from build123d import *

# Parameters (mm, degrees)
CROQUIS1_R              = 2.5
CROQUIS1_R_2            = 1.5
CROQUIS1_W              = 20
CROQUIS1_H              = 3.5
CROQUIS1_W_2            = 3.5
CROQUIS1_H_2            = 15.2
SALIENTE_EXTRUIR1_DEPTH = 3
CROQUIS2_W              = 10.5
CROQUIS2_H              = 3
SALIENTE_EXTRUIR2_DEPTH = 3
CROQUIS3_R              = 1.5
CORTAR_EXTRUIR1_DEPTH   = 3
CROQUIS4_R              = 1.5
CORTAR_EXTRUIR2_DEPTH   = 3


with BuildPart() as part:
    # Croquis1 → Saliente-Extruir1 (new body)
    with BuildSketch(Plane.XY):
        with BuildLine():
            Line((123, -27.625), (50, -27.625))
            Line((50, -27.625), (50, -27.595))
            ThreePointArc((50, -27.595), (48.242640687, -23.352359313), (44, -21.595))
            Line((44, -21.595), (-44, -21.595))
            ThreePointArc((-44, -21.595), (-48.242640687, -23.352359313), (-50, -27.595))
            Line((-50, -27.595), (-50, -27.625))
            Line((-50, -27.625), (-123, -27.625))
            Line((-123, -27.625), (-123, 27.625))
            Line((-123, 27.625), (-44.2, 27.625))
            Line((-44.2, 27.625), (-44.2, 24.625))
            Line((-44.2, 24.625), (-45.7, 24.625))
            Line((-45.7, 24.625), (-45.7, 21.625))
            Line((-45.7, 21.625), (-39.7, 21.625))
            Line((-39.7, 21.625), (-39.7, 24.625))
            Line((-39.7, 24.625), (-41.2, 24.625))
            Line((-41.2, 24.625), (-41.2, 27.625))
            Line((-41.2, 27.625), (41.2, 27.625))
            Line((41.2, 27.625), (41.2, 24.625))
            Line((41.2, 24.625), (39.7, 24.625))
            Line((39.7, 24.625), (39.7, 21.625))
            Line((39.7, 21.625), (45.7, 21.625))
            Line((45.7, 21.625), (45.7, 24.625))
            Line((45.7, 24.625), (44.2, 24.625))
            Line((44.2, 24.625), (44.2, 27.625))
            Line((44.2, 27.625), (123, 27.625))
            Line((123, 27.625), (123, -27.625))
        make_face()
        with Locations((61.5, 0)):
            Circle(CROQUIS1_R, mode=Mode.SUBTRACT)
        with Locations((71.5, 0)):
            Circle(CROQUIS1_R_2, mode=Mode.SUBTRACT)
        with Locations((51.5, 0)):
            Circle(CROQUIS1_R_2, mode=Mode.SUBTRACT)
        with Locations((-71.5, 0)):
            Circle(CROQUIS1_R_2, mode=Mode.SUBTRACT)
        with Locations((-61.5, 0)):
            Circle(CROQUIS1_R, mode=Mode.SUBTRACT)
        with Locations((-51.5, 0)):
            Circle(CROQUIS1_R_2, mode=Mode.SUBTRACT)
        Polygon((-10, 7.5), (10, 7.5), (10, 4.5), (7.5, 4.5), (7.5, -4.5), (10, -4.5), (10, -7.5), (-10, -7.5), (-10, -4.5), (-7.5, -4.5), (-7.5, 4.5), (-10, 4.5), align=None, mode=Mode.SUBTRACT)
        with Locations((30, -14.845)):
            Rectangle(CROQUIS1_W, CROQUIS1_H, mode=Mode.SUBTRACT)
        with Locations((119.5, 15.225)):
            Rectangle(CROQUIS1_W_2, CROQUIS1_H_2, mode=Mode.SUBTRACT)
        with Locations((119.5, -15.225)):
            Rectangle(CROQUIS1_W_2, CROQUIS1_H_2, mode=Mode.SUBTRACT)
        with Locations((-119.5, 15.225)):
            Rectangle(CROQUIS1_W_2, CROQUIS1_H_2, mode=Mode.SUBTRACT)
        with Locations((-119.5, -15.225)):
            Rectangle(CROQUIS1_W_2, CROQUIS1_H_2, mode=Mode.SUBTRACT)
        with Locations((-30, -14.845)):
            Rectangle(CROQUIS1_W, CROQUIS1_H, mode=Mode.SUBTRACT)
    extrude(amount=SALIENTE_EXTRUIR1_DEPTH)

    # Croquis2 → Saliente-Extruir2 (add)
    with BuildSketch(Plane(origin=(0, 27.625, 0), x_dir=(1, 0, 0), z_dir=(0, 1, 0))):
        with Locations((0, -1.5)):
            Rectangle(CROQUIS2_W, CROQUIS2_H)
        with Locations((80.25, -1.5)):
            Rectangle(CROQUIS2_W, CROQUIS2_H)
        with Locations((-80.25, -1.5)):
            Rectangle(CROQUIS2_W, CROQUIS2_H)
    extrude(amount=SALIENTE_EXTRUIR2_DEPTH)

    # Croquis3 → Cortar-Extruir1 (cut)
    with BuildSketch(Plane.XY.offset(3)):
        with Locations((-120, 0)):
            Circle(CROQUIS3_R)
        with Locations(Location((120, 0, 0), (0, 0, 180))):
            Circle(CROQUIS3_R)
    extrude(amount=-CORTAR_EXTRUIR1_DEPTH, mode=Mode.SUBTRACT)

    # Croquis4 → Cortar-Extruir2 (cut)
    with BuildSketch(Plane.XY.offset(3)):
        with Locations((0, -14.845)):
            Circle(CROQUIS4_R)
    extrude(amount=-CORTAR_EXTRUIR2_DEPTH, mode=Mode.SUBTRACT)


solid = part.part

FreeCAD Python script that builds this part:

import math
import FreeCAD as App
import Part
import Sketcher
from FreeCAD import Vector


def add_polygon(sketch, points):
    """Adds a closed chain of lines whose ends are joined by coincident constraints."""
    first, n = sketch.GeometryCount, len(points)
    for a, b in zip(points, points[1:] + points[:1]):
        sketch.addGeometry(Part.LineSegment(App.Vector(*a, 0), App.Vector(*b, 0)), False)
    for i in range(n):
        sketch.addConstraint(Sketcher.Constraint("Coincident", first + i, 2, first + (i + 1) % n, 1))

doc = App.newDocument("Part")
body = doc.addObject("PartDesign::Body", "Body")

# Sketch on XY plane
sketch1 = body.newObject("Sketcher::SketchObject", "Sketch")
sketch1.AttachmentSupport = (doc.getObject("XY_Plane"), [""])
sketch1.MapMode = "FlatFace"
sketch1.addGeometry(Part.LineSegment(Vector(50, -27.625, 0), Vector(123, -27.625, 0)), False)  # 0
sketch1.addGeometry(Part.LineSegment(Vector(123, -27.625, 0), Vector(123, 27.625, 0)), False)  # 1
sketch1.addGeometry(Part.LineSegment(Vector(123, 27.625, 0), Vector(44.2, 27.625, 0)), False)  # 2
sketch1.addGeometry(Part.LineSegment(Vector(44.2, 27.625, 0), Vector(44.2, 24.625, 0)), False)  # 3
sketch1.addGeometry(Part.LineSegment(Vector(44.2, 24.625, 0), Vector(45.7, 24.625, 0)), False)  # 4
sketch1.addGeometry(Part.LineSegment(Vector(45.7, 24.625, 0), Vector(45.7, 21.625, 0)), False)  # 5
sketch1.addGeometry(Part.LineSegment(Vector(45.7, 21.625, 0), Vector(39.7, 21.625, 0)), False)  # 6
sketch1.addGeometry(Part.LineSegment(Vector(39.7, 21.625, 0), Vector(39.7, 24.625, 0)), False)  # 7
sketch1.addGeometry(Part.LineSegment(Vector(39.7, 24.625, 0), Vector(41.2, 24.625, 0)), False)  # 8
sketch1.addGeometry(Part.LineSegment(Vector(41.2, 24.625, 0), Vector(41.2, 27.625, 0)), False)  # 9
sketch1.addGeometry(Part.LineSegment(Vector(41.2, 27.625, 0), Vector(-41.2, 27.625, 0)), False)  # 10
sketch1.addGeometry(Part.LineSegment(Vector(-41.2, 27.625, 0), Vector(-41.2, 24.625, 0)), False)  # 11
sketch1.addGeometry(Part.LineSegment(Vector(-41.2, 24.625, 0), Vector(-39.7, 24.625, 0)), False)  # 12
sketch1.addGeometry(Part.LineSegment(Vector(-39.7, 24.625, 0), Vector(-39.7, 21.625, 0)), False)  # 13
sketch1.addGeometry(Part.LineSegment(Vector(-39.7, 21.625, 0), Vector(-45.7, 21.625, 0)), False)  # 14
sketch1.addGeometry(Part.LineSegment(Vector(-45.7, 21.625, 0), Vector(-45.7, 24.625, 0)), False)  # 15
sketch1.addGeometry(Part.LineSegment(Vector(-45.7, 24.625, 0), Vector(-44.2, 24.625, 0)), False)  # 16
sketch1.addGeometry(Part.LineSegment(Vector(-44.2, 24.625, 0), Vector(-44.2, 27.625, 0)), False)  # 17
sketch1.addGeometry(Part.LineSegment(Vector(-44.2, 27.625, 0), Vector(-123, 27.625, 0)), False)  # 18
sketch1.addGeometry(Part.LineSegment(Vector(-123, 27.625, 0), Vector(-123, -27.625, 0)), False)  # 19
sketch1.addGeometry(Part.LineSegment(Vector(-123, -27.625, 0), Vector(-50, -27.625, 0)), False)  # 20
sketch1.addGeometry(Part.LineSegment(Vector(-50, -27.625, 0), Vector(-50, -27.595, 0)), False)  # 21
sketch1.addGeometry(Part.ArcOfCircle(Part.Circle(Vector(-44, -27.595, 0), Vector(0, 0, 1), 6), math.radians(90), math.radians(180)), False)  # 22
sketch1.addGeometry(Part.LineSegment(Vector(-44, -21.595, 0), Vector(44, -21.595, 0)), False)  # 23
sketch1.addGeometry(Part.ArcOfCircle(Part.Circle(Vector(44, -27.595, 0), Vector(0, 0, 1), 6), math.radians(0), math.radians(90)), False)  # 24
sketch1.addGeometry(Part.LineSegment(Vector(50, -27.595, 0), Vector(50, -27.625, 0)), False)  # 25
add_polygon(sketch1, [(117.75, -22.825), (117.75, -7.625), (121.25, -7.625), (121.25, -22.825)])  # lines 26-29
add_polygon(sketch1, [(20, -16.595), (20, -13.095), (40, -13.095), (40, -16.595)])  # lines 30-33
add_polygon(sketch1, [(-40, -16.595), (-40, -13.095), (-20, -13.095), (-20, -16.595)])  # lines 34-37
add_polygon(sketch1, [(-121.25, -22.825), (-121.25, -7.625), (-117.75, -7.625), (-117.75, -22.825)])  # lines 38-41
sketch1.addGeometry(Part.Circle(Vector(71.5, 0, 0), Vector(0, 0, 1), 1.5), False)  # 42
sketch1.addGeometry(Part.Circle(Vector(61.5, 0, 0), Vector(0, 0, 1), 2.5), False)  # 43
sketch1.addGeometry(Part.Circle(Vector(51.5, 0, 0), Vector(0, 0, 1), 1.5), False)  # 44
add_polygon(sketch1, [(117.75, 7.625), (117.75, 22.825), (121.25, 22.825), (121.25, 7.625)])  # lines 45-48
add_polygon(sketch1, [(-10, 7.5), (10, 7.5), (10, 4.5), (7.5, 4.5), (7.5, -4.5), (10, -4.5), (10, -7.5), (-10, -7.5), (-10, -4.5), (-7.5, -4.5), (-7.5, 4.5), (-10, 4.5)])  # lines 49-60
sketch1.addGeometry(Part.Circle(Vector(-51.5, 0, 0), Vector(0, 0, 1), 1.5), False)  # 61
sketch1.addGeometry(Part.Circle(Vector(-61.5, 0, 0), Vector(0, 0, 1), 2.5), False)  # 62
sketch1.addGeometry(Part.Circle(Vector(-71.5, 0, 0), Vector(0, 0, 1), 1.5), False)  # 63
add_polygon(sketch1, [(-121.25, 7.625), (-121.25, 22.825), (-117.75, 22.825), (-117.75, 7.625)])  # lines 64-67
sketch1.addConstraint([
    Sketcher.Constraint("Coincident", 0, 2, 1, 1),
    Sketcher.Constraint("Coincident", 1, 2, 2, 1),
    Sketcher.Constraint("Coincident", 2, 2, 3, 1),
    Sketcher.Constraint("Coincident", 3, 2, 4, 1),
    Sketcher.Constraint("Coincident", 4, 2, 5, 1),
    Sketcher.Constraint("Coincident", 5, 2, 6, 1),
    Sketcher.Constraint("Coincident", 6, 2, 7, 1),
    Sketcher.Constraint("Coincident", 7, 2, 8, 1),
    Sketcher.Constraint("Coincident", 8, 2, 9, 1),
    Sketcher.Constraint("Coincident", 9, 2, 10, 1),
    Sketcher.Constraint("Coincident", 10, 2, 11, 1),
    Sketcher.Constraint("Coincident", 11, 2, 12, 1),
    Sketcher.Constraint("Coincident", 12, 2, 13, 1),
    Sketcher.Constraint("Coincident", 13, 2, 14, 1),
    Sketcher.Constraint("Coincident", 14, 2, 15, 1),
    Sketcher.Constraint("Coincident", 15, 2, 16, 1),
    Sketcher.Constraint("Coincident", 16, 2, 17, 1),
    Sketcher.Constraint("Coincident", 17, 2, 18, 1),
    Sketcher.Constraint("Coincident", 18, 2, 19, 1),
    Sketcher.Constraint("Coincident", 19, 2, 20, 1),
    Sketcher.Constraint("Coincident", 20, 2, 21, 1),
    Sketcher.Constraint("Tangent", 21, 2, 22, 2),
    Sketcher.Constraint("Tangent", 22, 1, 23, 1),
    Sketcher.Constraint("Tangent", 23, 2, 24, 2),
    Sketcher.Constraint("Tangent", 24, 1, 25, 1),
    Sketcher.Constraint("Coincident", 25, 2, 0, 1),
    Sketcher.Constraint("Horizontal", 0),
    Sketcher.Constraint("Vertical", 1),
    Sketcher.Constraint("Horizontal", 2),
    Sketcher.Constraint("Vertical", 3),
    Sketcher.Constraint("Horizontal", 4),
    Sketcher.Constraint("Vertical", 5),
    Sketcher.Constraint("Horizontal", 6),
    Sketcher.Constraint("Vertical", 7),
    Sketcher.Constraint("Horizontal", 8),
    Sketcher.Constraint("Vertical", 9),
    Sketcher.Constraint("Horizontal", 10),
    Sketcher.Constraint("Vertical", 11),
    Sketcher.Constraint("Horizontal", 12),
    Sketcher.Constraint("Vertical", 13),
    Sketcher.Constraint("Horizontal", 14),
    Sketcher.Constraint("Vertical", 15),
    Sketcher.Constraint("Horizontal", 16),
    Sketcher.Constraint("Vertical", 17),
    Sketcher.Constraint("Horizontal", 18),
    Sketcher.Constraint("Vertical", 19),
    Sketcher.Constraint("Horizontal", 20),
    Sketcher.Constraint("Vertical", 21),
    Sketcher.Constraint("Horizontal", 23),
    Sketcher.Constraint("Vertical", 25),
    Sketcher.Constraint("Vertical", 26),
    Sketcher.Constraint("Horizontal", 27),
    Sketcher.Constraint("Vertical", 28),
    Sketcher.Constraint("Horizontal", 29),
    Sketcher.Constraint("Vertical", 30),
    Sketcher.Constraint("Horizontal", 31),
    Sketcher.Constraint("Vertical", 32),
    Sketcher.Constraint("Horizontal", 33),
    Sketcher.Constraint("Vertical", 34),
    Sketcher.Constraint("Horizontal", 35),
    Sketcher.Constraint("Vertical", 36),
    Sketcher.Constraint("Horizontal", 37),
    Sketcher.Constraint("Vertical", 38),
    Sketcher.Constraint("Horizontal", 39),
    Sketcher.Constraint("Vertical", 40),
    Sketcher.Constraint("Horizontal", 41),
    Sketcher.Constraint("Vertical", 45),
    Sketcher.Constraint("Horizontal", 46),
    Sketcher.Constraint("Vertical", 47),
    Sketcher.Constraint("Horizontal", 48),
    Sketcher.Constraint("Horizontal", 49),
    Sketcher.Constraint("Vertical", 50),
    Sketcher.Constraint("Horizontal", 51),
    Sketcher.Constraint("Vertical", 52),
    Sketcher.Constraint("Horizontal", 53),
    Sketcher.Constraint("Vertical", 54),
    Sketcher.Constraint("Horizontal", 55),
    Sketcher.Constraint("Vertical", 56),
    Sketcher.Constraint("Horizontal", 57),
    Sketcher.Constraint("Vertical", 58),
    Sketcher.Constraint("Horizontal", 59),
    Sketcher.Constraint("Vertical", 60),
    Sketcher.Constraint("Vertical", 64),
    Sketcher.Constraint("Horizontal", 65),
    Sketcher.Constraint("Vertical", 66),
    Sketcher.Constraint("Horizontal", 67),
    Sketcher.Constraint("Equal", 22, 24),
    Sketcher.Constraint("Equal", 42, 44),
    Sketcher.Constraint("Equal", 44, 61),
    Sketcher.Constraint("Equal", 43, 62),
    Sketcher.Constraint("Equal", 61, 63),
    Sketcher.Constraint("Symmetric", 44, 3, 61, 3, -1, 1),
    Sketcher.Constraint("Symmetric", 43, 3, 62, 3, -1, 1),
    Sketcher.Constraint("Symmetric", 42, 3, 63, 3, -1, 1),
    Sketcher.Constraint("Symmetric", 0, 2, 18, 2, -1, 1),
    Sketcher.Constraint("Symmetric", 40, 2, 45, 2, -1, 1),
    Sketcher.Constraint("Symmetric", 38, 2, 47, 2, -1, 1),
    Sketcher.Constraint("Symmetric", 49, 2, 55, 2, -1, 1),
    Sketcher.Constraint("Symmetric", 51, 2, 57, 2, -1, 1),
    Sketcher.Constraint("Symmetric", 53, 2, 59, 2, -1, 1),
    Sketcher.Constraint("Symmetric", 28, 2, 64, 2, -1, 1),
    Sketcher.Constraint("Symmetric", 26, 2, 66, 2, -1, 1),
    Sketcher.Constraint("Symmetric", 8, 2, 11, 2, -2),
    Sketcher.Constraint("Symmetric", 6, 2, 13, 2, -2),
    Sketcher.Constraint("Symmetric", 4, 2, 15, 2, -2),
    Sketcher.Constraint("Symmetric", 2, 2, 17, 2, -2),
    Sketcher.Constraint("Symmetric", 20, 2, 25, 2, -2),
    Sketcher.Constraint("Symmetric", 31, 2, 34, 2, -2),
    Sketcher.Constraint("Symmetric", 33, 2, 36, 2, -2),
    Sketcher.Constraint("Symmetric", 27, 2, 38, 2, -2),
    Sketcher.Constraint("Symmetric", 29, 2, 40, 2, -2),
    Sketcher.Constraint("Symmetric", 53, 2, 56, 2, -2),
    Sketcher.Constraint("PointOnObject", 42, 3, -1),
    Sketcher.Constraint("PointOnObject", 43, 3, -1),
    Sketcher.Constraint("PointOnObject", 44, 3, -1),
    Sketcher.Constraint("Horizontal", 4, 2, 7, 2),
    Sketcher.Constraint("Horizontal", 2, 2, 9, 2),
    Sketcher.Constraint("Equal", 4, 8),
    Sketcher.Constraint("Equal", 37, 49),
    Sketcher.Constraint("Equal", 3, 5),
    Sketcher.Constraint("Equal", 67, 30),
    Sketcher.Constraint("Equal", 17, 50),
    Sketcher.Constraint("Diameter", 42, 3.0),
    Sketcher.Constraint("Diameter", 43, 5.0),
    Sketcher.Constraint("Radius", 22, 6.0),
    Sketcher.Constraint("DistanceX", 0, 1, 0, 2, 73.0),
    Sketcher.Constraint("DistanceX", 6, 2, 6, 1, 6.0),
    Sketcher.Constraint("DistanceX", 23, 1, 23, 2, 88.0),
    Sketcher.Constraint("DistanceX", 31, 1, 31, 2, 20.0),
    Sketcher.Constraint("DistanceY", 3, 2, 3, 1, 3.0),
    Sketcher.Constraint("DistanceY", 52, 2, 52, 1, 9.0),
    Sketcher.Constraint("DistanceX", 2, 2, 2, 1, 78.8),
    Sketcher.Constraint("DistanceX", 4, 1, 4, 2, 1.5),
    Sketcher.Constraint("DistanceX", 27, 1, 27, 2, 3.5),
    Sketcher.Constraint("DistanceX", 51, 2, 51, 1, 2.5),
    Sketcher.Constraint("DistanceY", 26, 1, 26, 2, 15.2),
    Sketcher.Constraint("DistanceX", -1, 1, 30, 2, 20.0),
    Sketcher.Constraint("DistanceY", 1, 1, 1, 2, 55.25),
    Sketcher.Constraint("DistanceY", 21, 1, 21, 2, 0.03),
    Sketcher.Constraint("DistanceX", -1, 1, 42, 3, 71.5),
    Sketcher.Constraint("DistanceX", -1, 1, 43, 3, 61.5),
    Sketcher.Constraint("DistanceX", -1, 1, 44, 3, 51.5),
    Sketcher.Constraint("DistanceX", -1, 1, 26, 2, 117.75),
    Sketcher.Constraint("DistanceY", 26, 2, -1, 1, 7.625),
    Sketcher.Constraint("DistanceY", 30, 2, -1, 1, 13.095),
])
pad1 = body.newObject("PartDesign::Pad", "Pad")
pad1.Profile = sketch1
pad1.Length = 3

# Sketch on XZ plane
sketch2 = body.newObject("Sketcher::SketchObject", "Sketch001")
sketch2.AttachmentSupport = (doc.getObject("XZ_Plane"), [""])
sketch2.MapMode = "FlatFace"
sketch2.AttachmentOffset = App.Placement(Vector(0, 0, -27.625), App.Rotation())
add_polygon(sketch2, [(-5.2, 0), (-5.2, 3), (5.2, 3), (5.2, 0)])  # lines 0-3
add_polygon(sketch2, [(75, 0), (75, 3), (85.5, 3), (85.5, 0)])  # lines 4-7
add_polygon(sketch2, [(-85.5, 0), (-85.5, 3), (-75, 3), (-75, 0)])  # lines 8-11
sketch2.addConstraint([
    Sketcher.Constraint("Vertical", 0),
    Sketcher.Constraint("Horizontal", 1),
    Sketcher.Constraint("Vertical", 2),
    Sketcher.Constraint("Horizontal", 3),
    Sketcher.Constraint("Vertical", 4),
    Sketcher.Constraint("Horizontal", 5),
    Sketcher.Constraint("Vertical", 6),
    Sketcher.Constraint("Horizontal", 7),
    Sketcher.Constraint("Vertical", 8),
    Sketcher.Constraint("Horizontal", 9),
    Sketcher.Constraint("Vertical", 10),
    Sketcher.Constraint("Horizontal", 11),
    Sketcher.Constraint("Symmetric", 2, 2, 3, 2, -1, 1),
    Sketcher.Constraint("Symmetric", 7, 2, 10, 2, -1, 1),
    Sketcher.Constraint("Symmetric", 5, 2, 8, 2, -2),
    Sketcher.Constraint("PointOnObject", 6, 2, -1),
    Sketcher.Constraint("Horizontal", 1, 2, 4, 2),
    Sketcher.Constraint("Equal", 3, 5),
    Sketcher.Constraint("DistanceY", 0, 1, 0, 2, 3.0),
    Sketcher.Constraint("DistanceX", 1, 1, 1, 2, 10.5),
    Sketcher.Constraint("DistanceX", -1, 1, 4, 2, 75.0),
])
pad2 = body.newObject("PartDesign::Pad", "Pad001")
pad2.Profile = sketch2
pad2.Length = 3
pad2.Reversed = True

# Sketch on XY plane
sketch3 = body.newObject("Sketcher::SketchObject", "Sketch002")
sketch3.AttachmentSupport = (doc.getObject("XY_Plane"), [""])
sketch3.MapMode = "FlatFace"
sketch3.AttachmentOffset = App.Placement(Vector(0, 0, 3), App.Rotation())
sketch3.addGeometry([
    Part.Circle(Vector(-120, 0, 0), Vector(0, 0, 1), 1.5),
    Part.Circle(Vector(120, 0, 0), Vector(0, 0, 1), 1.5),
], False)
sketch3.addConstraint([
    Sketcher.Constraint("Equal", 0, 1),
    Sketcher.Constraint("Symmetric", 0, 3, 1, 3, -1, 1),
    Sketcher.Constraint("PointOnObject", 0, 3, -1),
    Sketcher.Constraint("Diameter", 0, 3.0),
    Sketcher.Constraint("DistanceX", 0, 3, -1, 1, 120.0),
])
pocket1 = body.newObject("PartDesign::Pocket", "Pocket")
pocket1.Profile = sketch3
pocket1.Length = 3

# Sketch on XY plane
sketch4 = body.newObject("Sketcher::SketchObject", "Sketch003")
sketch4.AttachmentSupport = (doc.getObject("XY_Plane"), [""])
sketch4.MapMode = "FlatFace"
sketch4.AttachmentOffset = App.Placement(Vector(0, 0, 3), App.Rotation())
sketch4.addGeometry(Part.Circle(Vector(0, -14.8, 0), Vector(0, 0, 1), 1.5), False)
sketch4.addConstraint([
    Sketcher.Constraint("PointOnObject", 0, 3, -2),
    Sketcher.Constraint("Diameter", 0, 3.0),
    Sketcher.Constraint("DistanceY", 0, 3, -1, 1, 14.845),
])
pocket2 = body.newObject("PartDesign::Pocket", "Pocket001")
pocket2.Profile = sketch4
pocket2.Length = 3

doc.recompute()
